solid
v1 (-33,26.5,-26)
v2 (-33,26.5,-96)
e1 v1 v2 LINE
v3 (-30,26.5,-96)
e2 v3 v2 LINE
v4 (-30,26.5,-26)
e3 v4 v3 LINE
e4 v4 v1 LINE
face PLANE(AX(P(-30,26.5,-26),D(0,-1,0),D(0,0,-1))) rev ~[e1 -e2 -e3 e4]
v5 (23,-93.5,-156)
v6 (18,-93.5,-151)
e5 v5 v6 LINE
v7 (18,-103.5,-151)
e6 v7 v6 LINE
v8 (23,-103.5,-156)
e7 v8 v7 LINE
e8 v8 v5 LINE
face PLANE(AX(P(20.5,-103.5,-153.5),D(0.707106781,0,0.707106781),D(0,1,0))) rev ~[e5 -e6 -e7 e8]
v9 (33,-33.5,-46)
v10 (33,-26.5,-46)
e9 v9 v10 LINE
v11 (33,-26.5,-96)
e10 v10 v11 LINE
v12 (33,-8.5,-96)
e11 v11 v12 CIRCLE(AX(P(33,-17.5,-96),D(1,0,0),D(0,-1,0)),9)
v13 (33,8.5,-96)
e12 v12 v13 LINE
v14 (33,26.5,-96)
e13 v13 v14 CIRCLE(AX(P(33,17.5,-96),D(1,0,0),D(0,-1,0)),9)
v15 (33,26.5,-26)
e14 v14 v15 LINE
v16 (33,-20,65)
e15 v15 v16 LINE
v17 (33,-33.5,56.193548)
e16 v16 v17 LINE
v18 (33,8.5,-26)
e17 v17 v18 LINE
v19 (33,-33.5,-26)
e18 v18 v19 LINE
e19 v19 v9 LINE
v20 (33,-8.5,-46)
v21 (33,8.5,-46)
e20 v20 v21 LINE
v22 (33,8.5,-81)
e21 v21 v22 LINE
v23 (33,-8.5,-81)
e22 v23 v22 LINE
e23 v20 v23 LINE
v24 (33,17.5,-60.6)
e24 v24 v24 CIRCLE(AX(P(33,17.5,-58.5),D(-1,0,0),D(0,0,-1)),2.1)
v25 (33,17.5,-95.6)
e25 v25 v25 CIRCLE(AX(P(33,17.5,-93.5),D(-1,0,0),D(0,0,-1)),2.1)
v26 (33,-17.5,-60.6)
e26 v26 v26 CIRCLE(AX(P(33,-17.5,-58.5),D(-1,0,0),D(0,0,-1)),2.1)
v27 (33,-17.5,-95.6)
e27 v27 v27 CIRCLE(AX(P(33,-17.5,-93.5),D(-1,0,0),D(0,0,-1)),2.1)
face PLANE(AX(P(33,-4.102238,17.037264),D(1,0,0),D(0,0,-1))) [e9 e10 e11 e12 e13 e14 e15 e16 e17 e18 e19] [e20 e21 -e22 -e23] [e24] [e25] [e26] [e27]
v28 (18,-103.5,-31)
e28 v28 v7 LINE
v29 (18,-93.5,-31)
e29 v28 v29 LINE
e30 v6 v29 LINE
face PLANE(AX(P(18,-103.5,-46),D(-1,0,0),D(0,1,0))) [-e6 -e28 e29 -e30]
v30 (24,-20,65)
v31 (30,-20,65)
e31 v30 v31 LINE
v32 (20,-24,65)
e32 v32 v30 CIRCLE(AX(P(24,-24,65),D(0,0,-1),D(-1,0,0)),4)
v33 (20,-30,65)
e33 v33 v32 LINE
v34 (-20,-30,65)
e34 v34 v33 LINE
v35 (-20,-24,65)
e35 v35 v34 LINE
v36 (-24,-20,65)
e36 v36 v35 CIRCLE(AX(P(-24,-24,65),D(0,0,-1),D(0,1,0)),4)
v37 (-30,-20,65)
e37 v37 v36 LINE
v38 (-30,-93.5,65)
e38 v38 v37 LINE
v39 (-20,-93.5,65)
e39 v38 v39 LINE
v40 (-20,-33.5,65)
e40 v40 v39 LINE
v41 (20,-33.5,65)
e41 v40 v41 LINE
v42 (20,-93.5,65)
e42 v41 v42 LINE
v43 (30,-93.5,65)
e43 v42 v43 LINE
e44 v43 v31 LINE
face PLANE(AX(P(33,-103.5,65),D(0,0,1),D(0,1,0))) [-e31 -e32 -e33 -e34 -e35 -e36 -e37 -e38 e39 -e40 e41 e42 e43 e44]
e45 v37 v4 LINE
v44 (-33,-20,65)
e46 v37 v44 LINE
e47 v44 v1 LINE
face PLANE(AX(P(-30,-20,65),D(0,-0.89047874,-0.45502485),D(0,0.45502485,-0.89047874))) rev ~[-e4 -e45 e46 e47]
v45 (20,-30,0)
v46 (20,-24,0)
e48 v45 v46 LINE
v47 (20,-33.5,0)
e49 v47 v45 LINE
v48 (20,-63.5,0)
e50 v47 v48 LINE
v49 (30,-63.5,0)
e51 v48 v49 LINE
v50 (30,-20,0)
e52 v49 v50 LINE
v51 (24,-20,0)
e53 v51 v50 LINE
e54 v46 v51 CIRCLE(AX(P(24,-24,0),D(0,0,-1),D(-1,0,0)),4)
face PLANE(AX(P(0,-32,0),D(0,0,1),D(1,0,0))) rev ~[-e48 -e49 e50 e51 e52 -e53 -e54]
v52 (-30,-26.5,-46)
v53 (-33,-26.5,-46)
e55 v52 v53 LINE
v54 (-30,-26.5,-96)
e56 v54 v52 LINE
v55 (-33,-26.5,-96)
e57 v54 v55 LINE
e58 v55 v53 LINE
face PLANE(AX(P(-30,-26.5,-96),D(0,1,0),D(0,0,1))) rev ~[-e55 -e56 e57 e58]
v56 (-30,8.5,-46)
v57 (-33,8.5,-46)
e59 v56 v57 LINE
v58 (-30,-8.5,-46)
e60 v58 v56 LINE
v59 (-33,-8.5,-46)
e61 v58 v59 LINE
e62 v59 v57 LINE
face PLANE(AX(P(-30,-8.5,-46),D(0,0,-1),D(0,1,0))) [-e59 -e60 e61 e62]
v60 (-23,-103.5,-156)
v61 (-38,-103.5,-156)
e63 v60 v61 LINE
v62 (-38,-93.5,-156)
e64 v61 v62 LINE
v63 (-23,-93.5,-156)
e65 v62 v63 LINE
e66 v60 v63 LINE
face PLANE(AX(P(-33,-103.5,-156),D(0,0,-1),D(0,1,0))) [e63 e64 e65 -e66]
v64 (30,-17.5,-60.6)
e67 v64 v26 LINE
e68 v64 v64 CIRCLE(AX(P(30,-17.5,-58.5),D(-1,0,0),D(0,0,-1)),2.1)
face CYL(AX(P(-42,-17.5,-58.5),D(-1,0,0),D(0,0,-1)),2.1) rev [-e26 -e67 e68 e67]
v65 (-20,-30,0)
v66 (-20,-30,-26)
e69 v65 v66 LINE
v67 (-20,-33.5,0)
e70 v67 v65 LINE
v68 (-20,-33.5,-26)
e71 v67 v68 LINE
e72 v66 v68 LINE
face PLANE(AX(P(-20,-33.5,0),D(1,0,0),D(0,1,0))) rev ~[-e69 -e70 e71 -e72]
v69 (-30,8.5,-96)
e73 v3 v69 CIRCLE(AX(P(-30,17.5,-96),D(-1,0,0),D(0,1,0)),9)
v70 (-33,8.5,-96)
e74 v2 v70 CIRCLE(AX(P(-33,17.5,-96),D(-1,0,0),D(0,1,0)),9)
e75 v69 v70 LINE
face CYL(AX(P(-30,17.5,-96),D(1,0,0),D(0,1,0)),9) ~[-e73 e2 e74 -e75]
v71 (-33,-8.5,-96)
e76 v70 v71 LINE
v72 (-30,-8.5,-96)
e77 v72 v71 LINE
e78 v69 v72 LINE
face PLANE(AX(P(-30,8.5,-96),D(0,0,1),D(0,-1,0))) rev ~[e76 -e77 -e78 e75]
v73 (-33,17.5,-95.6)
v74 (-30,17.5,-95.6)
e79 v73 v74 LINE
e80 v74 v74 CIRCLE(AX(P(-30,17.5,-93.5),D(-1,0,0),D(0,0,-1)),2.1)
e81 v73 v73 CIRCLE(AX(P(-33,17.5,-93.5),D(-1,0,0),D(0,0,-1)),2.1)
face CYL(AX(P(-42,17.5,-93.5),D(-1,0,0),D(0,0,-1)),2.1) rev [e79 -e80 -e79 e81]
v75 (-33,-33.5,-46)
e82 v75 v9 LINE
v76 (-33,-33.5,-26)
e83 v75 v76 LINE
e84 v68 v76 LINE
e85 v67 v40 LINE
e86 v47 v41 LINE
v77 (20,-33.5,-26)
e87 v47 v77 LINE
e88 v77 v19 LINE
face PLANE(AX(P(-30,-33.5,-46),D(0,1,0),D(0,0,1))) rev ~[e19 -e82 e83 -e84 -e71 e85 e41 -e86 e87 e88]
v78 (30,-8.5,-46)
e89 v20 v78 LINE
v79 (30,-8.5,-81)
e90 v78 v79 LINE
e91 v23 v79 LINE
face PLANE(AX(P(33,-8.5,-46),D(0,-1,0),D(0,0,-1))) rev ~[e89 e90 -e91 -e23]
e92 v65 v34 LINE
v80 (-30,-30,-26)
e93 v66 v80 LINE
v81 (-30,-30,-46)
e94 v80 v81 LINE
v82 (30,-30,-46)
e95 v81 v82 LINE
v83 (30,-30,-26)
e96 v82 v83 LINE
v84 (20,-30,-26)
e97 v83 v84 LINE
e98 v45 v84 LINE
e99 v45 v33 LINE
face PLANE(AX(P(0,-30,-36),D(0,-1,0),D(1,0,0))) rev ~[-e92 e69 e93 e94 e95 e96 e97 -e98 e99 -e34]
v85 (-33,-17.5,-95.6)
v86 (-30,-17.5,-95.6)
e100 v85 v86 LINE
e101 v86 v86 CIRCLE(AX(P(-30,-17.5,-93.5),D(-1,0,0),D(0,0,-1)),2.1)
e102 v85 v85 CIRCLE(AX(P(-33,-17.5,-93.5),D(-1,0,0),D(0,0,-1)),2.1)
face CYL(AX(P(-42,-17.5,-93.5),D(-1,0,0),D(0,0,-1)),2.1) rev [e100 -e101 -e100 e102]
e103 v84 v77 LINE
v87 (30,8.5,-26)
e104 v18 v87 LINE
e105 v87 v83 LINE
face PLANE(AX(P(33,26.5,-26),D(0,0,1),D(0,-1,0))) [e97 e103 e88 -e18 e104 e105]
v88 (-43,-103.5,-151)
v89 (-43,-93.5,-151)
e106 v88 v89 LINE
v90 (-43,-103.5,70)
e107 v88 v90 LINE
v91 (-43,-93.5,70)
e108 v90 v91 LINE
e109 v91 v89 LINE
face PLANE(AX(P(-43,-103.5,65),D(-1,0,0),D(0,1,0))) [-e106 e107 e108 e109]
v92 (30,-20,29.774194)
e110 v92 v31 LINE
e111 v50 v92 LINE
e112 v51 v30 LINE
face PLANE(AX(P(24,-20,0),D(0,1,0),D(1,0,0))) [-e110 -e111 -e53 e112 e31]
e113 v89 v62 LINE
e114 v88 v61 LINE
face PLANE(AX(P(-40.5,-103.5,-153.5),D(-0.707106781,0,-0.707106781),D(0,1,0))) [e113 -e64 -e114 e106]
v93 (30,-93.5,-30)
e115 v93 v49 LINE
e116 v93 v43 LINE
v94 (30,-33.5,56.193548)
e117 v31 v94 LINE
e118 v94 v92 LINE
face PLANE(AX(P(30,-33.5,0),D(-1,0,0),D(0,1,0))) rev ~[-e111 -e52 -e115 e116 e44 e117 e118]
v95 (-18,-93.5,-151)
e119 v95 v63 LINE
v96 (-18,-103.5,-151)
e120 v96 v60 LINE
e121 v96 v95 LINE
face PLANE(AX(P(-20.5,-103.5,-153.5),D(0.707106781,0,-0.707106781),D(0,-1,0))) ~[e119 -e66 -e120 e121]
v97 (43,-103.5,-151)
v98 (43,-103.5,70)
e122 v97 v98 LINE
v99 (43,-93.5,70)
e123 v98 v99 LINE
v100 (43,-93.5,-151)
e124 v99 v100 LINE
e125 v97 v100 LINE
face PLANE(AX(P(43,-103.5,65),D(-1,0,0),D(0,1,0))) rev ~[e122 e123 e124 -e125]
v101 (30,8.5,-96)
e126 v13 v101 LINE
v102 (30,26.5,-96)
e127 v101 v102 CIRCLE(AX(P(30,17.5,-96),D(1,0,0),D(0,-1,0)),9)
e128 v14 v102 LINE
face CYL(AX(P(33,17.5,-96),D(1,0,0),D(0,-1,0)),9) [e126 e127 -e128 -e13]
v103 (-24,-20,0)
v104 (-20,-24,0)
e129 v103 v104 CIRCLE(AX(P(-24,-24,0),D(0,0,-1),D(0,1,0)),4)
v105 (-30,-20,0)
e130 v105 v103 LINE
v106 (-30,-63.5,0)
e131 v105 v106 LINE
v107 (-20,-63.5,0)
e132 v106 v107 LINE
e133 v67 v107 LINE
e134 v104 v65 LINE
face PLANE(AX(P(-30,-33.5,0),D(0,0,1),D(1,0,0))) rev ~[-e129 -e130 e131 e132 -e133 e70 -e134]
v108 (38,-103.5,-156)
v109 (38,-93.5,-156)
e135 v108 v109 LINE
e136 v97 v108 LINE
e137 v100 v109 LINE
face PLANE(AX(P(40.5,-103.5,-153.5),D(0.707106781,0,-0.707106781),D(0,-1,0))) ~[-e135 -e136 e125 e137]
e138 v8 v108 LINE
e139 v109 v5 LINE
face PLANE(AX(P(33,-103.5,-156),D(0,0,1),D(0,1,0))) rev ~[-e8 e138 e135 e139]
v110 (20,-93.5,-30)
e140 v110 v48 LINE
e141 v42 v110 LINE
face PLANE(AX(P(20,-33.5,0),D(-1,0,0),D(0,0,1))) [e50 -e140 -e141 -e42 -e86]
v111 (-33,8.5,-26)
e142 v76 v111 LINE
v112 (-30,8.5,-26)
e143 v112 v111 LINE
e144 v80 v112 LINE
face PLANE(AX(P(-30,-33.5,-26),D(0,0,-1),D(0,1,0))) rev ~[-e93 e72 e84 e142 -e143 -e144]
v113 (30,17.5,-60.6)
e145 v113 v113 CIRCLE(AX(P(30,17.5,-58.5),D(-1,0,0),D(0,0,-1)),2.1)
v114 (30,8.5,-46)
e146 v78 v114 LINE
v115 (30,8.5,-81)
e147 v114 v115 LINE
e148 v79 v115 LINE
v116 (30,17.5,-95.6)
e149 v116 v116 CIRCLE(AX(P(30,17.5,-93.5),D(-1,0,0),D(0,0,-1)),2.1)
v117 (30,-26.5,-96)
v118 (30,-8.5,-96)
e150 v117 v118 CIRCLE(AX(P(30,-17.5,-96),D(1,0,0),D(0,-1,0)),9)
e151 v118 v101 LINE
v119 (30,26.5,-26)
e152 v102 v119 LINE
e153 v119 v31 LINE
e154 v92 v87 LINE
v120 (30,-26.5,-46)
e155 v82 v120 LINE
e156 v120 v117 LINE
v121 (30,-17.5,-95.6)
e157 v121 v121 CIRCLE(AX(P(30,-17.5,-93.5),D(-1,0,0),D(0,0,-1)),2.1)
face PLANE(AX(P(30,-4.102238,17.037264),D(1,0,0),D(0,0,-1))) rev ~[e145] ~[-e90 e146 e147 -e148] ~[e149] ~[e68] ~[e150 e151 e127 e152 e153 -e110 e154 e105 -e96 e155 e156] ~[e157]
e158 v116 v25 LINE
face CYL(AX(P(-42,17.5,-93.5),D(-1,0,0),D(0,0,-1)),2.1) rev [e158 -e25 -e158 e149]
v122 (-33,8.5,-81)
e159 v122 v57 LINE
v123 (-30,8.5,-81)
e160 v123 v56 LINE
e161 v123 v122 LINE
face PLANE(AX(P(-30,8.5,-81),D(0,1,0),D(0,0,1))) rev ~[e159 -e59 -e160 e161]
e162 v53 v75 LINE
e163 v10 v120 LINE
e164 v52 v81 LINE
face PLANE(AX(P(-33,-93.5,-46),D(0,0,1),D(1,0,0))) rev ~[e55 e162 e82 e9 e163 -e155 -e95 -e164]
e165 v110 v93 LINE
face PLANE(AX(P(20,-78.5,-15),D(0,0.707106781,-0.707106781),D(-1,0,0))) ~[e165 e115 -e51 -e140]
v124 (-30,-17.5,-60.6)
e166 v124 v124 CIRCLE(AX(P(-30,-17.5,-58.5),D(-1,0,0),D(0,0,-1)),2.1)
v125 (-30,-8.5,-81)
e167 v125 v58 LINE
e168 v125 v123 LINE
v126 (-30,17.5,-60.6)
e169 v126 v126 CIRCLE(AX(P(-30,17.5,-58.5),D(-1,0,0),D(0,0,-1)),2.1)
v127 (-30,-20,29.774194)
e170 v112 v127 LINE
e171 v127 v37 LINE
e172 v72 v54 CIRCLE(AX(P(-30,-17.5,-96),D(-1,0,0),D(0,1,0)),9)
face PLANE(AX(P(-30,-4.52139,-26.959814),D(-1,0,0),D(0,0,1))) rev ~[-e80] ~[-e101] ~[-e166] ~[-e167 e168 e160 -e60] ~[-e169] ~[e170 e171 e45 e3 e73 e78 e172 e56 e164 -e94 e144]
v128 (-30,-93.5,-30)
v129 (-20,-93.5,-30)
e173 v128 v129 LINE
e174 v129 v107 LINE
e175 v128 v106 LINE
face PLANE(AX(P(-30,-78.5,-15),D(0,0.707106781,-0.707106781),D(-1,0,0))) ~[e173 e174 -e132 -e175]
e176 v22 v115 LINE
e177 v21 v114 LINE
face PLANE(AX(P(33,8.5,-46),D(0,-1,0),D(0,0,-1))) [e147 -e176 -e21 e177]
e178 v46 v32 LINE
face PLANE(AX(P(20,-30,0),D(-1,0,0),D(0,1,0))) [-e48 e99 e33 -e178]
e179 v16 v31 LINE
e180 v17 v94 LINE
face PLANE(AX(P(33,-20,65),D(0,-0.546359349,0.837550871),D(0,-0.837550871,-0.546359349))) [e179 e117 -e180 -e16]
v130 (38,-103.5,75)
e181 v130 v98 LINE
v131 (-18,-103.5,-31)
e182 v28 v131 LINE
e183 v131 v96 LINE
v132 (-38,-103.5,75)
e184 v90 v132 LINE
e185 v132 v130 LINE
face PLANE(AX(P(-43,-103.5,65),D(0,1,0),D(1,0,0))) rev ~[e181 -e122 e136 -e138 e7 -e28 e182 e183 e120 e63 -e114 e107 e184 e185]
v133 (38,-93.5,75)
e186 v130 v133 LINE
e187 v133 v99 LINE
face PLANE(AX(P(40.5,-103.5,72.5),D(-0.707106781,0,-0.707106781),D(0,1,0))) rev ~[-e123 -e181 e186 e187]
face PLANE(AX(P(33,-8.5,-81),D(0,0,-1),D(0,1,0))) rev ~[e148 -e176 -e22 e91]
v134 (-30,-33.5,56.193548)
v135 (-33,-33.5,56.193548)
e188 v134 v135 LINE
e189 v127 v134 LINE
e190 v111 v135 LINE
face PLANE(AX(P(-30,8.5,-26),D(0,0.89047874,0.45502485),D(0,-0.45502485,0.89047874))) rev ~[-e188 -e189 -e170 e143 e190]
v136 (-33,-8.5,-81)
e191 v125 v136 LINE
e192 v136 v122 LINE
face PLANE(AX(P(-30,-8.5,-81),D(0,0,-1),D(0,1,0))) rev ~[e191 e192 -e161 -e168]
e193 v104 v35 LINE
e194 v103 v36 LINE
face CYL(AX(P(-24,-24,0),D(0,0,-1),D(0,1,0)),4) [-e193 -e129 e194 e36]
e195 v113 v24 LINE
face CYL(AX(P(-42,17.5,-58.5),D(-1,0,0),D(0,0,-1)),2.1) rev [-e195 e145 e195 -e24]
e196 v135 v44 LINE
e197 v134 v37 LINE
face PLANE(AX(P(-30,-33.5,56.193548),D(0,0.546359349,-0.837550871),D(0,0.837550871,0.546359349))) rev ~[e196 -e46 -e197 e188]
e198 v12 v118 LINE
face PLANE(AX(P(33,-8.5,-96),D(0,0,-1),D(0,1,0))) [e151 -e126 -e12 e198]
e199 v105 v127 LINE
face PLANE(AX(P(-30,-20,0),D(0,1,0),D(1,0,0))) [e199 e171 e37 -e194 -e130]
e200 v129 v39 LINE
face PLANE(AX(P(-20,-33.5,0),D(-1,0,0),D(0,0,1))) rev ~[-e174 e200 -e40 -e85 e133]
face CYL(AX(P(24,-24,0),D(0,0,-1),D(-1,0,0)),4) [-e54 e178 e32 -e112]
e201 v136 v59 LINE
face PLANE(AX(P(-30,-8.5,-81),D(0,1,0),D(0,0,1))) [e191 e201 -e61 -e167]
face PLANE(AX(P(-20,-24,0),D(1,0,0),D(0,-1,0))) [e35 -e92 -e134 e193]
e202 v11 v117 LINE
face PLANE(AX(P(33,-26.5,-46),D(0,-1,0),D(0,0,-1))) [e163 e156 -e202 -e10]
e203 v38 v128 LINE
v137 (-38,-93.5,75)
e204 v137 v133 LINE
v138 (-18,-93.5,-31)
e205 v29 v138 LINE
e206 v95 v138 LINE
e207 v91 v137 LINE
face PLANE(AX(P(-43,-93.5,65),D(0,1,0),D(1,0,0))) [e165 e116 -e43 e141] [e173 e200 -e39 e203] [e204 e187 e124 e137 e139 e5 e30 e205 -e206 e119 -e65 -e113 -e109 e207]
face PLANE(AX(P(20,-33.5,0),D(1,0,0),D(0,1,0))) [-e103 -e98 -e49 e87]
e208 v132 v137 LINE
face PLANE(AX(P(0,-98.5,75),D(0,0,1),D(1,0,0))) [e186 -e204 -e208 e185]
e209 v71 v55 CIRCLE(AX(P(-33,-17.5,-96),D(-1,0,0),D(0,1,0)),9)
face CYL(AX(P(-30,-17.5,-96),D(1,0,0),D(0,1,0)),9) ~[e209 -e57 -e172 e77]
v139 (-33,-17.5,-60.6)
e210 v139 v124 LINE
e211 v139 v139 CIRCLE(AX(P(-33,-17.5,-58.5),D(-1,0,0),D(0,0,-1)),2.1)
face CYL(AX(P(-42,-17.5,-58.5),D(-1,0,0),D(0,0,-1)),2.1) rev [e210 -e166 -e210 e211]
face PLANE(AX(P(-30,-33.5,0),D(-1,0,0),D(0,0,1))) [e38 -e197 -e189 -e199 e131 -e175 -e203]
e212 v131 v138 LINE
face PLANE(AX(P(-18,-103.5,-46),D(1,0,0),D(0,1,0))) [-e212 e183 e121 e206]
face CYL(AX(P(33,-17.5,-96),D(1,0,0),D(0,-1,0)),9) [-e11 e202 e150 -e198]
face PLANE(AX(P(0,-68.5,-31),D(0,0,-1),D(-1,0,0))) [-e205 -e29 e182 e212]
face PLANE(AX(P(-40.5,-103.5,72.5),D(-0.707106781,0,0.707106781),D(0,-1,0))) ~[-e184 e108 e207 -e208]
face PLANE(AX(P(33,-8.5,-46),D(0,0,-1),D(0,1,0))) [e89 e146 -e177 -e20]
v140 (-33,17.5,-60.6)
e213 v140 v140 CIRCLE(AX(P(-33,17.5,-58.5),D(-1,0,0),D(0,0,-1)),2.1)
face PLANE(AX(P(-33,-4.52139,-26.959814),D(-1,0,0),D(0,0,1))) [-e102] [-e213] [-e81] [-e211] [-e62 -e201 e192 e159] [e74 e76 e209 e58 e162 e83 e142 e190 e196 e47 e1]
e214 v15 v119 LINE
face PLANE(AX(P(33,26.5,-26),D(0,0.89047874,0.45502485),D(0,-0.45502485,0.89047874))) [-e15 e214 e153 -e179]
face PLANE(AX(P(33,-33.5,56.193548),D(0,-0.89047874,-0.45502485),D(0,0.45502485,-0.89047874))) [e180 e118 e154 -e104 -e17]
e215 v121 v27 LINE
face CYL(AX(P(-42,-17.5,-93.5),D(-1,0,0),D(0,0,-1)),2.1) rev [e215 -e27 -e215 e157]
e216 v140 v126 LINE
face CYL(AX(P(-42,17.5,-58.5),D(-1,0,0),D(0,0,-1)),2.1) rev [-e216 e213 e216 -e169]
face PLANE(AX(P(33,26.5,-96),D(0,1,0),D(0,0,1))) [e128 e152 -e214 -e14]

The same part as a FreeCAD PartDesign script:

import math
import FreeCAD as App
import Part
import Sketcher
from FreeCAD import Vector
Q = App.Units.Quantity


def edges_at(feature, points):
    """Names of the edges that pass closest to the given points."""
    edges = feature.Shape.Edges
    near = lambda p: min(range(len(edges)), key=lambda i: edges[i].distToShape(Part.Vertex(*p))[0])
    return sorted({f"Edge{near(p) + 1}" for p in points})

doc = App.newDocument("Part")
body = doc.addObject("PartDesign::Body", "Body")

# Sketch on XY plane
sketch1 = body.newObject("Sketcher::SketchObject", "Sketch")
sketch1.AttachmentSupport = (doc.getObject("XY_Plane"), [""])
sketch1.MapMode = "FlatFace"
sketch1.addGeometry([
    Part.LineSegment(Vector(-30, -33.5, 0), Vector(30, -33.5, 0)),  # 0
    Part.LineSegment(Vector(30, -33.5, 0), Vector(30, -20, 0)),  # 1
    Part.LineSegment(Vector(30, -20, 0), Vector(24, -20, 0)),  # 2
    Part.ArcOfCircle(Part.Circle(Vector(24, -24, 0), Vector(0, 0, 1), 4), math.radians(90), math.radians(180)),  # 3
    Part.LineSegment(Vector(20, -24, 0), Vector(20, -30, 0)),  # 4
    Part.LineSegment(Vector(20, -30, 0), Vector(-20, -30, 0)),  # 5
    Part.LineSegment(Vector(-20, -30, 0), Vector(-20, -24, 0)),  # 6
    Part.ArcOfCircle(Part.Circle(Vector(-24, -24, 0), Vector(0, 0, 1), 4), math.radians(0), math.radians(90)),  # 7
    Part.LineSegment(Vector(-24, -20, 0), Vector(-30, -20, 0)),  # 8
    Part.LineSegment(Vector(-30, -20, 0), Vector(-30, -33.5, 0)),  # 9
], False)
sketch1.addConstraint([
    Sketcher.Constraint("Coincident", 0, 2, 1, 1),
    Sketcher.Constraint("Coincident", 1, 2, 2, 1),
    Sketcher.Constraint("Tangent", 2, 2, 3, 1),
    Sketcher.Constraint("Tangent", 3, 2, 4, 1),
    Sketcher.Constraint("Coincident", 4, 2, 5, 1),
    Sketcher.Constraint("Coincident", 5, 2, 6, 1),
    Sketcher.Constraint("Tangent", 6, 2, 7, 1),
    Sketcher.Constraint("Tangent", 7, 2, 8, 1),
    Sketcher.Constraint("Coincident", 8, 2, 9, 1),
    Sketcher.Constraint("Coincident", 9, 2, 0, 1),
    Sketcher.Constraint("Horizontal", 0),
    Sketcher.Constraint("Vertical", 1),
    Sketcher.Constraint("Horizontal", 2),
    Sketcher.Constraint("Vertical", 4),
    Sketcher.Constraint("Horizontal", 5),
    Sketcher.Constraint("Vertical", 6),
    Sketcher.Constraint("Horizontal", 8),
    Sketcher.Constraint("Vertical", 9),
    Sketcher.Constraint("Equal", 3, 7),
    Sketcher.Constraint("Symmetric", 3, 3, 7, 3, -2),
    Sketcher.Constraint("Equal", 2, 8),
    Sketcher.Constraint("Equal", 8, 4),
    Sketcher.Constraint("Radius", 3, Q("4 mm")),
    Sketcher.Constraint("DistanceX", 0, 1, 0, 2, Q("60 mm")),
    Sketcher.Constraint("DistanceX", 2, 2, 2, 1, Q("6 mm")),
    Sketcher.Constraint("DistanceY", 1, 1, 1, 2, Q("13.5 mm")),
    Sketcher.Constraint("DistanceY", 3, 3, -1, 1, Q("24 mm")),
])
pad1 = body.newObject("PartDesign::Pad", "Pad")
pad1.Profile = sketch1
pad1.Length = 65

# Sketch on XY plane
sketch2 = body.newObject("Sketcher::SketchObject", "Sketch001")
sketch2.AttachmentSupport = (doc.getObject("XY_Plane"), [""])
sketch2.MapMode = "FlatFace"
sketch2.addGeometry([
    Part.LineSegment(Vector(20, -30, 0), Vector(20, -33.5, 0)),
    Part.LineSegment(Vector(20, -33.5, 0), Vector(-20, -33.5, 0)),
    Part.LineSegment(Vector(-20, -33.5, 0), Vector(-20, -30, 0)),
    Part.LineSegment(Vector(-20, -30, 0), Vector(20, -30, 0)),
], False)
sketch2.addConstraint([
    Sketcher.Constraint("Coincident", 0, 2, 1, 1),
    Sketcher.Constraint("Coincident", 1, 2, 2, 1),
    Sketcher.Constraint("Coincident", 2, 2, 3, 1),
    Sketcher.Constraint("Coincident", 3, 2, 0, 1),
    Sketcher.Constraint("Vertical", 0),
    Sketcher.Constraint("Horizontal", 1),
    Sketcher.Constraint("Vertical", 2),
    Sketcher.Constraint("Horizontal", 3),
    Sketcher.Constraint("DistanceX", 1, 2, 1, 1, Q("40 mm")),
    Sketcher.Constraint("DistanceY", 0, 2, 0, 1, Q("3.5 mm")),
    Sketcher.Constraint("DistanceX", -1, 1, 0, 2, Q("20 mm")),
    Sketcher.Constraint("DistanceY", 2, 2, -1, 1, Q("30 mm")),
])
pad2 = body.newObject("PartDesign::Pad", "Pad001")
pad2.Profile = sketch2
pad2.Length = 46
pad2.Reversed = True

# Sketch on XZ plane
sketch3 = body.newObject("Sketcher::SketchObject", "Sketch002")
sketch3.AttachmentSupport = (doc.getObject("XZ_Plane"), [""])
sketch3.MapMode = "FlatFace"
sketch3.AttachmentOffset = App.Placement(Vector(0, 0, 33.5), App.Rotation())
sketch3.addGeometry([
    Part.LineSegment(Vector(30, -46, 0), Vector(30, -26, 0)),
    Part.LineSegment(Vector(30, -26, 0), Vector(-30, -26, 0)),
    Part.LineSegment(Vector(-30, -26, 0), Vector(-30, -46, 0)),
    Part.LineSegment(Vector(-30, -46, 0), Vector(30, -46, 0)),
], False)
sketch3.addConstraint([
    Sketcher.Constraint("Coincident", 0, 2, 1, 1),
    Sketcher.Constraint("Coincident", 1, 2, 2, 1),
    Sketcher.Constraint("Coincident", 2, 2, 3, 1),
    Sketcher.Constraint("Coincident", 3, 2, 0, 1),
    Sketcher.Constraint("Vertical", 0),
    Sketcher.Constraint("Horizontal", 1),
    Sketcher.Constraint("Vertical", 2),
    Sketcher.Constraint("Horizontal", 3),
    Sketcher.Constraint("DistanceX", 1, 2, 1, 1, Q("60 mm")),
    Sketcher.Constraint("DistanceY", 0, 1, 0, 2, Q("20 mm")),
    Sketcher.Constraint("DistanceX", -1, 1, 0, 2, Q("30 mm")),
    Sketcher.Constraint("DistanceY", 0, 2, -1, 1, Q("26 mm")),
])
pad3 = body.newObject("PartDesign::Pad", "Pad002")
pad3.Profile = sketch3
pad3.Length = 3.5
pad3.Reversed = True

# Sketch on YZ plane
sketch4 = body.newObject("Sketcher::SketchObject", "Sketch003")
sketch4.AttachmentSupport = (doc.getObject("YZ_Plane"), [""])
sketch4.MapMode = "FlatFace"
sketch4.AttachmentOffset = App.Placement(Vector(0, 0, -30), App.Rotation())
sketch4.addGeometry([
    Part.LineSegment(Vector(-26.5, -46, 0), Vector(-33.5, -46, 0)),  # 0
    Part.LineSegment(Vector(-33.5, -46, 0), Vector(-33.5, -26, 0)),  # 1
    Part.LineSegment(Vector(-33.5, -26, 0), Vector(8.5, -26, 0)),  # 2
    Part.LineSegment(Vector(8.5, -26, 0), Vector(-33.5, 56.193548, 0)),  # 3
    Part.LineSegment(Vector(-33.5, 56.193548, 0), Vector(-20, 65, 0)),  # 4
    Part.LineSegment(Vector(-20, 65, 0), Vector(26.5, -26, 0)),  # 5
    Part.LineSegment(Vector(26.5, -26, 0), Vector(26.5, -96, 0)),  # 6
    Part.ArcOfCircle(Part.Circle(Vector(17.5, -96, 0), Vector(0, 0, 1), 9), math.radians(180), math.radians(360)),  # 7
    Part.LineSegment(Vector(8.5, -96, 0), Vector(-8.5, -96, 0)),  # 8
    Part.ArcOfCircle(Part.Circle(Vector(-17.5, -96, 0), Vector(0, 0, 1), 9), math.radians(180), math.radians(360)),  # 9
    Part.LineSegment(Vector(-26.5, -96, 0), Vector(-26.5, -46, 0)),  # 10
    Part.LineSegment(Vector(-8.5, -46, 0), Vector(-8.5, -81, 0)),  # 11
    Part.LineSegment(Vector(-8.5, -81, 0), Vector(8.5, -81, 0)),  # 12
    Part.LineSegment(Vector(8.5, -81, 0), Vector(8.5, -46, 0)),  # 13
    Part.LineSegment(Vector(8.5, -46, 0), Vector(-8.5, -46, 0)),  # 14
], False)
sketch4.addConstraint([
    Sketcher.Constraint("Coincident", 0, 2, 1, 1),
    Sketcher.Constraint("Coincident", 1, 2, 2, 1),
    Sketcher.Constraint("Coincident", 2, 2, 3, 1),
    Sketcher.Constraint("Coincident", 3, 2, 4, 1),
    Sketcher.Constraint("Coincident", 4, 2, 5, 1),
    Sketcher.Constraint("Coincident", 5, 2, 6, 1),
    Sketcher.Constraint("Tangent", 6, 2, 7, 2),
    Sketcher.Constraint("Coincident", 7, 1, 8, 1),
    Sketcher.Constraint("Coincident", 8, 2, 9, 2),
    Sketcher.Constraint("Tangent", 9, 1, 10, 1),
    Sketcher.Constraint("Coincident", 10, 2, 0, 1),
    Sketcher.Constraint("Coincident", 11, 2, 12, 1),
    Sketcher.Constraint("Coincident", 12, 2, 13, 1),
    Sketcher.Constraint("Coincident", 13, 2, 14, 1),
    Sketcher.Constraint("Coincident", 14, 2, 11, 1),
    Sketcher.Constraint("Horizontal", 0),
    Sketcher.Constraint("Vertical", 1),
    Sketcher.Constraint("Horizontal", 2),
    Sketcher.Constraint("Vertical", 6),
    Sketcher.Constraint("Horizontal", 8),
    Sketcher.Constraint("Vertical", 10),
    Sketcher.Constraint("Vertical", 11),
    Sketcher.Constraint("Horizontal", 12),
    Sketcher.Constraint("Vertical", 13),
    Sketcher.Constraint("Horizontal", 14),
    Sketcher.Constraint("Equal", 7, 9),
    Sketcher.Constraint("Symmetric", 7, 3, 9, 3, -2),
    Sketcher.Constraint("Parallel", 3, 5),
    Sketcher.Constraint("Horizontal", 2, 2, 5, 2),
    Sketcher.Constraint("Horizontal", 6, 2, 7, 1),
    Sketcher.Constraint("Horizontal", 10, 2, 13, 2),
    Sketcher.Constraint("Vertical", 1, 2, 3, 2),
    Sketcher.Constraint("Vertical", 2, 2, 7, 1),
    Sketcher.Constraint("Vertical", 8, 2, 11, 2),
    Sketcher.Constraint("Vertical", 7, 1, 12, 2),
    Sketcher.Constraint("Radius", 7, Q("9 mm")),
    Sketcher.Constraint("DistanceX", 0, 2, 0, 1, Q("7 mm")),
    Sketcher.Constraint("DistanceX", 2, 1, 2, 2, Q("42 mm")),
    Sketcher.Constraint("DistanceY", 1, 1, 1, 2, Q("20 mm")),
    Sketcher.Constraint("DistanceY", 6, 2, 6, 1, Q("70 mm")),
    Sketcher.Constraint("DistanceY", 11, 2, 11, 1, Q("35 mm")),
    Sketcher.Constraint("DistanceY", 7, 3, -1, 1, Q("96 mm")),
    Sketcher.Constraint("DistanceX", 4, 2, -1, 1, Q("20 mm")),
    Sketcher.Constraint("DistanceY", -1, 1, 4, 2, Q("65 mm")),
])
pad4 = body.newObject("PartDesign::Pad", "Pad003")
pad4.Profile = sketch4
pad4.Length = 3
pad4.Reversed = True

# Sketch on YZ plane
sketch5 = body.newObject("Sketcher::SketchObject", "Sketch004")
sketch5.AttachmentSupport = (doc.getObject("YZ_Plane"), [""])
sketch5.MapMode = "FlatFace"
sketch5.AttachmentOffset = App.Placement(Vector(0, 0, 33), App.Rotation())
sketch5.addGeometry([
    Part.LineSegment(Vector(26.5, -26, 0), Vector(-20, 65, 0)),  # 0
    Part.LineSegment(Vector(-20, 65, 0), Vector(-33.5, 56.193548, 0)),  # 1
    Part.LineSegment(Vector(-33.5, 56.193548, 0), Vector(8.5, -26, 0)),  # 2
    Part.LineSegment(Vector(8.5, -26, 0), Vector(-33.5, -26, 0)),  # 3
    Part.LineSegment(Vector(-33.5, -26, 0), Vector(-33.5, -46, 0)),  # 4
    Part.LineSegment(Vector(-33.5, -46, 0), Vector(-26.5, -46, 0)),  # 5
    Part.LineSegment(Vector(-26.5, -46, 0), Vector(-26.5, -96, 0)),  # 6
    Part.ArcOfCircle(Part.Circle(Vector(-17.5, -96, 0), Vector(0, 0, 1), 9), math.radians(180), math.radians(360)),  # 7
    Part.LineSegment(Vector(-8.5, -96, 0), Vector(8.5, -96, 0)),  # 8
    Part.ArcOfCircle(Part.Circle(Vector(17.5, -96, 0), Vector(0, 0, 1), 9), math.radians(180), math.radians(360)),  # 9
    Part.LineSegment(Vector(26.5, -96, 0), Vector(26.5, -26, 0)),  # 10
    Part.LineSegment(Vector(-8.5, -46, 0), Vector(8.5, -46, 0)),  # 11
    Part.LineSegment(Vector(8.5, -46, 0), Vector(8.5, -81, 0)),  # 12
    Part.LineSegment(Vector(8.5, -81, 0), Vector(-8.5, -81, 0)),  # 13
    Part.LineSegment(Vector(-8.5, -81, 0), Vector(-8.5, -46, 0)),  # 14
], False)
sketch5.addConstraint([
    Sketcher.Constraint("Coincident", 0, 2, 1, 1),
    Sketcher.Constraint("Coincident", 1, 2, 2, 1),
    Sketcher.Constraint("Coincident", 2, 2, 3, 1),
    Sketcher.Constraint("Coincident", 3, 2, 4, 1),
    Sketcher.Constraint("Coincident", 4, 2, 5, 1),
    Sketcher.Constraint("Coincident", 5, 2, 6, 1),
    Sketcher.Constraint("Tangent", 6, 2, 7, 1),
    Sketcher.Constraint("Coincident", 7, 2, 8, 1),
    Sketcher.Constraint("Coincident", 8, 2, 9, 1),
    Sketcher.Constraint("Tangent", 9, 2, 10, 1),
    Sketcher.Constraint("Coincident", 10, 2, 0, 1),
    Sketcher.Constraint("Coincident", 11, 2, 12, 1),
    Sketcher.Constraint("Coincident", 12, 2, 13, 1),
    Sketcher.Constraint("Coincident", 13, 2, 14, 1),
    Sketcher.Constraint("Coincident", 14, 2, 11, 1),
    Sketcher.Constraint("Horizontal", 3),
    Sketcher.Constraint("Vertical", 4),
    Sketcher.Constraint("Horizontal", 5),
    Sketcher.Constraint("Vertical", 6),
    Sketcher.Constraint("Horizontal", 8),
    Sketcher.Constraint("Vertical", 10),
    Sketcher.Constraint("Horizontal", 11),
    Sketcher.Constraint("Vertical", 12),
    Sketcher.Constraint("Horizontal", 13),
    Sketcher.Constraint("Vertical", 14),
    Sketcher.Constraint("Equal", 7, 9),
    Sketcher.Constraint("Symmetric", 7, 3, 9, 3, -2),
    Sketcher.Constraint("Parallel", 0, 2),
    Sketcher.Constraint("Horizontal", 6, 2, 7, 2),
    Sketcher.Constraint("Horizontal", 3, 2, 10, 2),
    Sketcher.Constraint("Horizontal", 5, 2, 11, 2),
    Sketcher.Constraint("Vertical", 1, 2, 3, 2),
    Sketcher.Constraint("Vertical", 2, 2, 8, 2),
    Sketcher.Constraint("Vertical", 8, 2, 11, 2),
    Sketcher.Constraint("Vertical", 7, 2, 13, 2),
    Sketcher.Constraint("Radius", 7, Q("9 mm")),
    Sketcher.Constraint("DistanceX", 3, 2, 3, 1, Q("42 mm")),
    Sketcher.Constraint("DistanceX", 5, 1, 5, 2, Q("7 mm")),
    Sketcher.Constraint("DistanceY", 4, 2, 4, 1, Q("20 mm")),
    Sketcher.Constraint("DistanceY", 6, 2, 6, 1, Q("50 mm")),
    Sketcher.Constraint("DistanceY", 12, 2, 12, 1, Q("35 mm")),
    Sketcher.Constraint("DistanceY", 7, 3, -1, 1, Q("96 mm")),
    Sketcher.Constraint("DistanceX", 0, 2, -1, 1, Q("20 mm")),
    Sketcher.Constraint("DistanceY", -1, 1, 0, 2, Q("65 mm")),
])
pad5 = body.newObject("PartDesign::Pad", "Pad004")
pad5.Profile = sketch5
pad5.Length = 3
pad5.Reversed = True

# Sketch on XZ plane
sketch6 = body.newObject("Sketcher::SketchObject", "Sketch005")
sketch6.AttachmentSupport = (doc.getObject("XZ_Plane"), [""])
sketch6.MapMode = "FlatFace"
sketch6.AttachmentOffset = App.Placement(Vector(0, 0, 33.5), App.Rotation())
sketch6.addGeometry([
    Part.LineSegment(Vector(-18, -36, 0), Vector(-18, -46, 0)),  # 0
    Part.LineSegment(Vector(-18, -46, 0), Vector(18, -46, 0)),  # 1
    Part.LineSegment(Vector(18, -46, 0), Vector(18, -36, 0)),  # 2
    Part.LineSegment(Vector(18, -36, 0), Vector(-18, -36, 0)),  # 3
    Part.LineSegment(Vector(-30, 65, 0), Vector(-30, 0, 0)),  # 4
    Part.LineSegment(Vector(-30, 0, 0), Vector(-20, 0, 0)),  # 5
    Part.LineSegment(Vector(-20, 0, 0), Vector(-20, 65, 0)),  # 6
    Part.LineSegment(Vector(-20, 65, 0), Vector(-30, 65, 0)),  # 7
    Part.LineSegment(Vector(20, 65, 0), Vector(20, 0, 0)),  # 8
    Part.LineSegment(Vector(20, 0, 0), Vector(30, 0, 0)),  # 9
    Part.LineSegment(Vector(30, 0, 0), Vector(30, 65, 0)),  # 10
    Part.LineSegment(Vector(30, 65, 0), Vector(20, 65, 0)),  # 11
], False)
sketch6.addConstraint([
    Sketcher.Constraint("Coincident", 0, 2, 1, 1),
    Sketcher.Constraint("Coincident", 1, 2, 2, 1),
    Sketcher.Constraint("Coincident", 2, 2, 3, 1),
    Sketcher.Constraint("Coincident", 3, 2, 0, 1),
    Sketcher.Constraint("Coincident", 4, 2, 5, 1),
    Sketcher.Constraint("Coincident", 5, 2, 6, 1),
    Sketcher.Constraint("Coincident", 6, 2, 7, 1),
    Sketcher.Constraint("Coincident", 7, 2, 4, 1),
    Sketcher.Constraint("Coincident", 8, 2, 9, 1),
    Sketcher.Constraint("Coincident", 9, 2, 10, 1),
    Sketcher.Constraint("Coincident", 10, 2, 11, 1),
    Sketcher.Constraint("Coincident", 11, 2, 8, 1),
    Sketcher.Constraint("Vertical", 0),
    Sketcher.Constraint("Horizontal", 1),
    Sketcher.Constraint("Vertical", 2),
    Sketcher.Constraint("Horizontal", 3),
    Sketcher.Constraint("Vertical", 4),
    Sketcher.Constraint("Horizontal", 5),
    Sketcher.Constraint("Vertical", 6),
    Sketcher.Constraint("Horizontal", 7),
    Sketcher.Constraint("Vertical", 8),
    Sketcher.Constraint("Horizontal", 9),
    Sketcher.Constraint("Vertical", 10),
    Sketcher.Constraint("Horizontal", 11),
    Sketcher.Constraint("Symmetric", 5, 2, 8, 2, -1, 1),
    Sketcher.Constraint("Symmetric", 4, 2, 9, 2, -2),
    Sketcher.Constraint("Horizontal", 7, 2, 10, 2),
    Sketcher.Constraint("Equal", 11, 0),
    Sketcher.Constraint("DistanceX", 1, 1, 1, 2, Q("36 mm")),
    Sketcher.Constraint("DistanceX", 5, 1, 5, 2, Q("10 mm")),
    Sketcher.Constraint("DistanceY", 4, 2, 4, 1, Q("65 mm")),
    Sketcher.Constraint("DistanceX", 0, 2, -1, 1, Q("18 mm")),
    Sketcher.Constraint("DistanceY", 0, 2, -1, 1, Q("46 mm")),
    Sketcher.Constraint("DistanceX", 4, 2, -1, 1, Q("30 mm")),
])
pad6 = body.newObject("PartDesign::Pad", "Pad005")
pad6.Profile = sketch6
pad6.Length = 60

# Sketch on XZ plane
sketch7 = body.newObject("Sketcher::SketchObject", "Sketch006")
sketch7.AttachmentSupport = (doc.getObject("XZ_Plane"), [""])
sketch7.MapMode = "FlatFace"
sketch7.AttachmentOffset = App.Placement(Vector(0, 0, 93.5), App.Rotation())
sketch7.addGeometry([
    Part.LineSegment(Vector(-33, 65, 0), Vector(-33, -46, 0)),
    Part.LineSegment(Vector(-33, -46, 0), Vector(33, -46, 0)),
    Part.LineSegment(Vector(33, -46, 0), Vector(33, 65, 0)),
    Part.LineSegment(Vector(33, 65, 0), Vector(-33, 65, 0)),
], False)
sketch7.addConstraint([
    Sketcher.Constraint("Coincident", 0, 2, 1, 1),
    Sketcher.Constraint("Coincident", 1, 2, 2, 1),
    Sketcher.Constraint("Coincident", 2, 2, 3, 1),
    Sketcher.Constraint("Coincident", 3, 2, 0, 1),
    Sketcher.Constraint("Vertical", 0),
    Sketcher.Constraint("Horizontal", 1),
    Sketcher.Constraint("Vertical", 2),
    Sketcher.Constraint("Horizontal", 3),
    Sketcher.Constraint("DistanceX", 1, 1, 1, 2, Q("66 mm")),
    Sketcher.Constraint("DistanceY", 0, 2, 0, 1, Q("111 mm")),
    Sketcher.Constraint("DistanceX", 0, 2, -1, 1, Q("33 mm")),
    Sketcher.Constraint("DistanceY", 0, 2, -1, 1, Q("46 mm")),
])
pad7 = body.newObject("PartDesign::Pad", "Pad006")
pad7.Profile = sketch7
pad7.Length = 10

# Sketch on XY plane
sketch8 = body.newObject("Sketcher::SketchObject", "Sketch007")
sketch8.AttachmentSupport = (doc.getObject("XY_Plane"), [""])
sketch8.MapMode = "FlatFace"
sketch8.AttachmentOffset = App.Placement(Vector(0, 0, -46), App.Rotation())
sketch8.addGeometry([
    Part.LineSegment(Vector(-18, -93.5, 0), Vector(-18, -103.5, 0)),  # 0
    Part.LineSegment(Vector(-18, -103.5, 0), Vector(-33, -103.5, 0)),  # 1
    Part.LineSegment(Vector(-33, -103.5, 0), Vector(-33, -93.5, 0)),  # 2
    Part.LineSegment(Vector(-33, -93.5, 0), Vector(-18, -93.5, 0)),  # 3
    Part.LineSegment(Vector(33, -93.5, 0), Vector(33, -103.5, 0)),  # 4
    Part.LineSegment(Vector(33, -103.5, 0), Vector(18, -103.5, 0)),  # 5
    Part.LineSegment(Vector(18, -103.5, 0), Vector(18, -93.5, 0)),  # 6
    Part.LineSegment(Vector(18, -93.5, 0), Vector(33, -93.5, 0)),  # 7
], False)
sketch8.addConstraint([
    Sketcher.Constraint("Coincident", 0, 2, 1, 1),
    Sketcher.Constraint("Coincident", 1, 2, 2, 1),
    Sketcher.Constraint("Coincident", 2, 2, 3, 1),
    Sketcher.Constraint("Coincident", 3, 2, 0, 1),
    Sketcher.Constraint("Coincident", 4, 2, 5, 1),
    Sketcher.Constraint("Coincident", 5, 2, 6, 1),
    Sketcher.Constraint("Coincident", 6, 2, 7, 1),
    Sketcher.Constraint("Coincident", 7, 2, 4, 1),
    Sketcher.Constraint("Vertical", 0),
    Sketcher.Constraint("Horizontal", 1),
    Sketcher.Constraint("Vertical", 2),
    Sketcher.Constraint("Horizontal", 3),
    Sketcher.Constraint("Vertical", 4),
    Sketcher.Constraint("Horizontal", 5),
    Sketcher.Constraint("Vertical", 6),
    Sketcher.Constraint("Horizontal", 7),
    Sketcher.Constraint("Symmetric", 1, 2, 4, 2, -2),
    Sketcher.Constraint("Symmetric", 3, 2, 6, 2, -2),
    Sketcher.Constraint("DistanceX", 1, 2, 1, 1, Q("15 mm")),
    Sketcher.Constraint("DistanceY", 0, 2, 0, 1, Q("10 mm")),
    Sketcher.Constraint("DistanceX", 0, 2, -1, 1, Q("18 mm")),
    Sketcher.Constraint("DistanceY", 0, 2, -1, 1, Q("103.5 mm")),
])
pad8 = body.newObject("PartDesign::Pad", "Pad007")
pad8.Profile = sketch8
pad8.Length = 110
pad8.Reversed = True

# Sketch on XY plane
sketch9 = body.newObject("Sketcher::SketchObject", "Sketch008")
sketch9.AttachmentSupport = (doc.getObject("XY_Plane"), [""])
sketch9.MapMode = "FlatFace"
sketch9.AttachmentOffset = App.Placement(Vector(0, 0, -46), App.Rotation())
sketch9.addGeometry([
    Part.LineSegment(Vector(18, -33.5, 0), Vector(18, -103.5, 0)),
    Part.LineSegment(Vector(18, -103.5, 0), Vector(-18, -103.5, 0)),
    Part.LineSegment(Vector(-18, -103.5, 0), Vector(-18, -33.5, 0)),
    Part.LineSegment(Vector(-18, -33.5, 0), Vector(18, -33.5, 0)),
], False)
sketch9.addConstraint([
    Sketcher.Constraint("Coincident", 0, 2, 1, 1),
    Sketcher.Constraint("Coincident", 1, 2, 2, 1),
    Sketcher.Constraint("Coincident", 2, 2, 3, 1),
    Sketcher.Constraint("Coincident", 3, 2, 0, 1),
    Sketcher.Constraint("Vertical", 0),
    Sketcher.Constraint("Horizontal", 1),
    Sketcher.Constraint("Vertical", 2),
    Sketcher.Constraint("Horizontal", 3),
    Sketcher.Constraint("DistanceX", 1, 2, 1, 1, Q("36 mm")),
    Sketcher.Constraint("DistanceY", 0, 2, 0, 1, Q("70 mm")),
    Sketcher.Constraint("DistanceX", -1, 1, 0, 2, Q("18 mm")),
    Sketcher.Constraint("DistanceY", 0, 2, -1, 1, Q("103.5 mm")),
])
pocket1 = body.newObject("PartDesign::Pocket", "Pocket")
pocket1.Profile = sketch9
pocket1.Length = 15
pocket1.Reversed = True

# Sketch on YZ plane
sketch10 = body.newObject("Sketcher::SketchObject", "Sketch009")
sketch10.AttachmentSupport = (doc.getObject("YZ_Plane"), [""])
sketch10.MapMode = "FlatFace"
sketch10.AttachmentOffset = App.Placement(Vector(0, 0, -33), App.Rotation())
sketch10.addGeometry([
    Part.LineSegment(Vector(-93.5, -156, 0), Vector(-103.5, -156, 0)),
    Part.LineSegment(Vector(-103.5, -156, 0), Vector(-103.5, 65, 0)),
    Part.LineSegment(Vector(-103.5, 65, 0), Vector(-93.5, 65, 0)),
    Part.LineSegment(Vector(-93.5, 65, 0), Vector(-93.5, -156, 0)),
], False)
sketch10.addConstraint([
    Sketcher.Constraint("Coincident", 0, 2, 1, 1),
    Sketcher.Constraint("Coincident", 1, 2, 2, 1),
    Sketcher.Constraint("Coincident", 2, 2, 3, 1),
    Sketcher.Constraint("Coincident", 3, 2, 0, 1),
    Sketcher.Constraint("Horizontal", 0),
    Sketcher.Constraint("Vertical", 1),
    Sketcher.Constraint("Horizontal", 2),
    Sketcher.Constraint("Vertical", 3),
    Sketcher.Constraint("DistanceX", 0, 2, 0, 1, Q("10 mm")),
    Sketcher.Constraint("DistanceY", 1, 1, 1, 2, Q("221 mm")),
    Sketcher.Constraint("DistanceY", 0, 2, -1, 1, Q("156 mm")),
    Sketcher.Constraint("DistanceX", 0, 2, -1, 1, Q("103.5 mm")),
])
pad9 = body.newObject("PartDesign::Pad", "Pad008")
pad9.Profile = sketch10
pad9.Length = 10
pad9.Reversed = True

# Sketch on YZ plane
sketch11 = body.newObject("Sketcher::SketchObject", "Sketch010")
sketch11.AttachmentSupport = (doc.getObject("YZ_Plane"), [""])
sketch11.MapMode = "FlatFace"
sketch11.AttachmentOffset = App.Placement(Vector(0, 0, 33), App.Rotation())
sketch11.addGeometry([
    Part.LineSegment(Vector(-93.5, 65, 0), Vector(-103.5, 65, 0)),
    Part.LineSegment(Vector(-103.5, 65, 0), Vector(-103.5, -156, 0)),
    Part.LineSegment(Vector(-103.5, -156, 0), Vector(-93.5, -156, 0)),
    Part.LineSegment(Vector(-93.5, -156, 0), Vector(-93.5, 65, 0)),
], False)
sketch11.addConstraint([
    Sketcher.Constraint("Coincident", 0, 2, 1, 1),
    Sketcher.Constraint("Coincident", 1, 2, 2, 1),
    Sketcher.Constraint("Coincident", 2, 2, 3, 1),
    Sketcher.Constraint("Coincident", 3, 2, 0, 1),
    Sketcher.Constraint("Horizontal", 0),
    Sketcher.Constraint("Vertical", 1),
    Sketcher.Constraint("Horizontal", 2),
    Sketcher.Constraint("Vertical", 3),
    Sketcher.Constraint("DistanceX", 0, 2, 0, 1, Q("10 mm")),
    Sketcher.Constraint("DistanceY", 1, 2, 1, 1, Q("221 mm")),
    Sketcher.Constraint("DistanceY", -1, 1, 0, 2, Q("65 mm")),
    Sketcher.Constraint("DistanceX", 0, 2, -1, 1, Q("103.5 mm")),
])
pad10 = body.newObject("PartDesign::Pad", "Pad009")
pad10.Profile = sketch11
pad10.Length = 10

# Sketch on XY plane
sketch12 = body.newObject("Sketcher::SketchObject", "Sketch011")
sketch12.AttachmentSupport = (doc.getObject("XY_Plane"), [""])
sketch12.MapMode = "FlatFace"
sketch12.AttachmentOffset = App.Placement(Vector(0, 0, 65), App.Rotation())
sketch12.addGeometry([
    Part.LineSegment(Vector(-43, -93.5, 0), Vector(-43, -103.5, 0)),
    Part.LineSegment(Vector(-43, -103.5, 0), Vector(43, -103.5, 0)),
    Part.LineSegment(Vector(43, -103.5, 0), Vector(43, -93.5, 0)),
    Part.LineSegment(Vector(43, -93.5, 0), Vector(-43, -93.5, 0)),
], False)
sketch12.addConstraint([
    Sketcher.Constraint("Coincident", 0, 2, 1, 1),
    Sketcher.Constraint("Coincident", 1, 2, 2, 1),
    Sketcher.Constraint("Coincident", 2, 2, 3, 1),
    Sketcher.Constraint("Coincident", 3, 2, 0, 1),
    Sketcher.Constraint("Vertical", 0),
    Sketcher.Constraint("Horizontal", 1),
    Sketcher.Constraint("Vertical", 2),
    Sketcher.Constraint("Horizontal", 3),
    Sketcher.Constraint("DistanceX", 1, 1, 1, 2, Q("86 mm")),
    Sketcher.Constraint("DistanceY", 0, 2, 0, 1, Q("10 mm")),
    Sketcher.Constraint("DistanceX", 0, 2, -1, 1, Q("43 mm")),
    Sketcher.Constraint("DistanceY", 0, 2, -1, 1, Q("103.5 mm")),
])
pad11 = body.newObject("PartDesign::Pad", "Pad010")
pad11.Profile = sketch12
pad11.Length = 10
doc.recompute()

chamfer = body.newObject("PartDesign::Chamfer", "Chamfer")
chamfer.Base = (pad11, edges_at(pad11, [(25, -93.5, 0)]))
chamfer.Size = 30
doc.recompute()

chamfer2 = body.newObject("PartDesign::Chamfer", "Chamfer001")
chamfer2.Base = (chamfer, edges_at(chamfer, [(-25, -93.5, 0)]))
chamfer2.Size = 30

# Sketch on YZ plane
sketch13 = body.newObject("Sketcher::SketchObject", "Sketch012")
sketch13.AttachmentSupport = (doc.getObject("YZ_Plane"), [""])
sketch13.MapMode = "FlatFace"
sketch13.AttachmentOffset = App.Placement(Vector(0, 0, 33), App.Rotation())
sketch13.addGeometry([
    Part.Circle(Vector(17.5, -93.5, 0), Vector(0, 0, 1), 2.1),
    Part.Circle(Vector(17.5, -58.5, 0), Vector(0, 0, 1), 2.1),
    Part.Circle(Vector(-17.5, -58.5, 0), Vector(0, 0, 1), 2.1),
    Part.Circle(Vector(-17.5, -93.5, 0), Vector(0, 0, 1), 2.1),
], False)
sketch13.addConstraint([
    Sketcher.Constraint("Equal", 0, 1),
    Sketcher.Constraint("Equal", 1, 2),
    Sketcher.Constraint("Equal", 2, 3),
    Sketcher.Constraint("Symmetric", 1, 3, 2, 3, -2),
    Sketcher.Constraint("Symmetric", 0, 3, 3, 3, -2),
    Sketcher.Constraint("Vertical", 0, 3, 1, 3),
    Sketcher.Constraint("Diameter", 0, Q("4.2 mm")),
    Sketcher.Constraint("DistanceY", 0, 3, 1, 3, Q("35 mm")),
    Sketcher.Constraint("DistanceX", 2, 3, 1, 3, Q("35 mm")),
    Sketcher.Constraint("DistanceY", 0, 3, -1, 1, Q("93.5 mm")),
])
pocket2 = body.newObject("PartDesign::Pocket", "Pocket001")
pocket2.Profile = sketch13
pocket2.Type = "ThroughAll"
pocket2.Midplane = True
doc.recompute()

chamfer3 = body.newObject("PartDesign::Chamfer", "Chamfer002")
chamfer3.Base = (pocket2, edges_at(pocket2, [
    (-18, -98.5, -156),
    (18, -98.5, -156),
    (-43, -98.5, -156),
    (43, -98.5, -156),
    (-43, -98.5, 75),
    (43, -98.5, 75),
]))
chamfer3.Size = 5

doc.recompute()
